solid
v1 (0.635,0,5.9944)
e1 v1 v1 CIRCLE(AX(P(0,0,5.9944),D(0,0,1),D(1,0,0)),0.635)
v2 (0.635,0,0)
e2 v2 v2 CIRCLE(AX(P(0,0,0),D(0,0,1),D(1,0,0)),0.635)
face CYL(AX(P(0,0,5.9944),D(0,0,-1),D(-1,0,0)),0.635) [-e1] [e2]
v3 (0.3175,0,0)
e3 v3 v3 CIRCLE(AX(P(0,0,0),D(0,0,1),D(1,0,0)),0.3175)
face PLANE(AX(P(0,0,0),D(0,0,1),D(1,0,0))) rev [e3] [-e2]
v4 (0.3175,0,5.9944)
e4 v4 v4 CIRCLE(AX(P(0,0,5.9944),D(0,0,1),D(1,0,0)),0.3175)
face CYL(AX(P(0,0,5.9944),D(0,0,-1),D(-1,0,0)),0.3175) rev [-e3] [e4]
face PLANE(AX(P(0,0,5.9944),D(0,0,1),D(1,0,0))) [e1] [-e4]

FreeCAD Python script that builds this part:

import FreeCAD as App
import Part
import Sketcher
from FreeCAD import Vector
Q = App.Units.Quantity

doc = App.newDocument("Part")
params = doc.addObject("Spreadsheet::Sheet", "Params")
for row, (alias, value) in enumerate([
    ("sketch1_diameter", "0.05 in"),
    ("sketch1_diameter2", "0.025 in"),
    ("pad1_length", "0.236 in"),
], start=1):
    params.set(f"A{row}", alias)
    params.set(f"B{row}", "=" + value)
    params.setAlias(f"B{row}", alias)

body = doc.addObject("PartDesign::Body", "Body")

# Sketch on XY plane
sketch1 = body.newObject("Sketcher::SketchObject", "Sketch")
sketch1.AttachmentSupport = (doc.getObject("XY_Plane"), [""])
sketch1.MapMode = "FlatFace"
sketch1.addGeometry(Part.Circle(Vector(0, 0, 0), Vector(0, 0, 1), 0.64), False)
sketch1.addGeometry(Part.Circle(Vector(0, 0, 0), Vector(0, 0, 1), 0.32), False)
sketch1.addConstraint(Sketcher.Constraint("Coincident", 0, 3, -1, 1))
sketch1.addConstraint(Sketcher.Constraint("Coincident", 1, 3, -1, 1))
sketch1.addConstraint(Sketcher.Constraint("Diameter", 0, Q("0.05 in")))
sketch1.addConstraint(Sketcher.Constraint("Diameter", 1, Q("0.025 in")))
sketch1.setExpression("Constraints[2]", "Params.sketch1_diameter")
sketch1.setExpression("Constraints[3]", "Params.sketch1_diameter2")
pad1 = body.newObject("PartDesign::Pad", "Pad")
pad1.Profile = sketch1
pad1.setExpression("Length", "Params.pad1_length")

doc.recompute()
